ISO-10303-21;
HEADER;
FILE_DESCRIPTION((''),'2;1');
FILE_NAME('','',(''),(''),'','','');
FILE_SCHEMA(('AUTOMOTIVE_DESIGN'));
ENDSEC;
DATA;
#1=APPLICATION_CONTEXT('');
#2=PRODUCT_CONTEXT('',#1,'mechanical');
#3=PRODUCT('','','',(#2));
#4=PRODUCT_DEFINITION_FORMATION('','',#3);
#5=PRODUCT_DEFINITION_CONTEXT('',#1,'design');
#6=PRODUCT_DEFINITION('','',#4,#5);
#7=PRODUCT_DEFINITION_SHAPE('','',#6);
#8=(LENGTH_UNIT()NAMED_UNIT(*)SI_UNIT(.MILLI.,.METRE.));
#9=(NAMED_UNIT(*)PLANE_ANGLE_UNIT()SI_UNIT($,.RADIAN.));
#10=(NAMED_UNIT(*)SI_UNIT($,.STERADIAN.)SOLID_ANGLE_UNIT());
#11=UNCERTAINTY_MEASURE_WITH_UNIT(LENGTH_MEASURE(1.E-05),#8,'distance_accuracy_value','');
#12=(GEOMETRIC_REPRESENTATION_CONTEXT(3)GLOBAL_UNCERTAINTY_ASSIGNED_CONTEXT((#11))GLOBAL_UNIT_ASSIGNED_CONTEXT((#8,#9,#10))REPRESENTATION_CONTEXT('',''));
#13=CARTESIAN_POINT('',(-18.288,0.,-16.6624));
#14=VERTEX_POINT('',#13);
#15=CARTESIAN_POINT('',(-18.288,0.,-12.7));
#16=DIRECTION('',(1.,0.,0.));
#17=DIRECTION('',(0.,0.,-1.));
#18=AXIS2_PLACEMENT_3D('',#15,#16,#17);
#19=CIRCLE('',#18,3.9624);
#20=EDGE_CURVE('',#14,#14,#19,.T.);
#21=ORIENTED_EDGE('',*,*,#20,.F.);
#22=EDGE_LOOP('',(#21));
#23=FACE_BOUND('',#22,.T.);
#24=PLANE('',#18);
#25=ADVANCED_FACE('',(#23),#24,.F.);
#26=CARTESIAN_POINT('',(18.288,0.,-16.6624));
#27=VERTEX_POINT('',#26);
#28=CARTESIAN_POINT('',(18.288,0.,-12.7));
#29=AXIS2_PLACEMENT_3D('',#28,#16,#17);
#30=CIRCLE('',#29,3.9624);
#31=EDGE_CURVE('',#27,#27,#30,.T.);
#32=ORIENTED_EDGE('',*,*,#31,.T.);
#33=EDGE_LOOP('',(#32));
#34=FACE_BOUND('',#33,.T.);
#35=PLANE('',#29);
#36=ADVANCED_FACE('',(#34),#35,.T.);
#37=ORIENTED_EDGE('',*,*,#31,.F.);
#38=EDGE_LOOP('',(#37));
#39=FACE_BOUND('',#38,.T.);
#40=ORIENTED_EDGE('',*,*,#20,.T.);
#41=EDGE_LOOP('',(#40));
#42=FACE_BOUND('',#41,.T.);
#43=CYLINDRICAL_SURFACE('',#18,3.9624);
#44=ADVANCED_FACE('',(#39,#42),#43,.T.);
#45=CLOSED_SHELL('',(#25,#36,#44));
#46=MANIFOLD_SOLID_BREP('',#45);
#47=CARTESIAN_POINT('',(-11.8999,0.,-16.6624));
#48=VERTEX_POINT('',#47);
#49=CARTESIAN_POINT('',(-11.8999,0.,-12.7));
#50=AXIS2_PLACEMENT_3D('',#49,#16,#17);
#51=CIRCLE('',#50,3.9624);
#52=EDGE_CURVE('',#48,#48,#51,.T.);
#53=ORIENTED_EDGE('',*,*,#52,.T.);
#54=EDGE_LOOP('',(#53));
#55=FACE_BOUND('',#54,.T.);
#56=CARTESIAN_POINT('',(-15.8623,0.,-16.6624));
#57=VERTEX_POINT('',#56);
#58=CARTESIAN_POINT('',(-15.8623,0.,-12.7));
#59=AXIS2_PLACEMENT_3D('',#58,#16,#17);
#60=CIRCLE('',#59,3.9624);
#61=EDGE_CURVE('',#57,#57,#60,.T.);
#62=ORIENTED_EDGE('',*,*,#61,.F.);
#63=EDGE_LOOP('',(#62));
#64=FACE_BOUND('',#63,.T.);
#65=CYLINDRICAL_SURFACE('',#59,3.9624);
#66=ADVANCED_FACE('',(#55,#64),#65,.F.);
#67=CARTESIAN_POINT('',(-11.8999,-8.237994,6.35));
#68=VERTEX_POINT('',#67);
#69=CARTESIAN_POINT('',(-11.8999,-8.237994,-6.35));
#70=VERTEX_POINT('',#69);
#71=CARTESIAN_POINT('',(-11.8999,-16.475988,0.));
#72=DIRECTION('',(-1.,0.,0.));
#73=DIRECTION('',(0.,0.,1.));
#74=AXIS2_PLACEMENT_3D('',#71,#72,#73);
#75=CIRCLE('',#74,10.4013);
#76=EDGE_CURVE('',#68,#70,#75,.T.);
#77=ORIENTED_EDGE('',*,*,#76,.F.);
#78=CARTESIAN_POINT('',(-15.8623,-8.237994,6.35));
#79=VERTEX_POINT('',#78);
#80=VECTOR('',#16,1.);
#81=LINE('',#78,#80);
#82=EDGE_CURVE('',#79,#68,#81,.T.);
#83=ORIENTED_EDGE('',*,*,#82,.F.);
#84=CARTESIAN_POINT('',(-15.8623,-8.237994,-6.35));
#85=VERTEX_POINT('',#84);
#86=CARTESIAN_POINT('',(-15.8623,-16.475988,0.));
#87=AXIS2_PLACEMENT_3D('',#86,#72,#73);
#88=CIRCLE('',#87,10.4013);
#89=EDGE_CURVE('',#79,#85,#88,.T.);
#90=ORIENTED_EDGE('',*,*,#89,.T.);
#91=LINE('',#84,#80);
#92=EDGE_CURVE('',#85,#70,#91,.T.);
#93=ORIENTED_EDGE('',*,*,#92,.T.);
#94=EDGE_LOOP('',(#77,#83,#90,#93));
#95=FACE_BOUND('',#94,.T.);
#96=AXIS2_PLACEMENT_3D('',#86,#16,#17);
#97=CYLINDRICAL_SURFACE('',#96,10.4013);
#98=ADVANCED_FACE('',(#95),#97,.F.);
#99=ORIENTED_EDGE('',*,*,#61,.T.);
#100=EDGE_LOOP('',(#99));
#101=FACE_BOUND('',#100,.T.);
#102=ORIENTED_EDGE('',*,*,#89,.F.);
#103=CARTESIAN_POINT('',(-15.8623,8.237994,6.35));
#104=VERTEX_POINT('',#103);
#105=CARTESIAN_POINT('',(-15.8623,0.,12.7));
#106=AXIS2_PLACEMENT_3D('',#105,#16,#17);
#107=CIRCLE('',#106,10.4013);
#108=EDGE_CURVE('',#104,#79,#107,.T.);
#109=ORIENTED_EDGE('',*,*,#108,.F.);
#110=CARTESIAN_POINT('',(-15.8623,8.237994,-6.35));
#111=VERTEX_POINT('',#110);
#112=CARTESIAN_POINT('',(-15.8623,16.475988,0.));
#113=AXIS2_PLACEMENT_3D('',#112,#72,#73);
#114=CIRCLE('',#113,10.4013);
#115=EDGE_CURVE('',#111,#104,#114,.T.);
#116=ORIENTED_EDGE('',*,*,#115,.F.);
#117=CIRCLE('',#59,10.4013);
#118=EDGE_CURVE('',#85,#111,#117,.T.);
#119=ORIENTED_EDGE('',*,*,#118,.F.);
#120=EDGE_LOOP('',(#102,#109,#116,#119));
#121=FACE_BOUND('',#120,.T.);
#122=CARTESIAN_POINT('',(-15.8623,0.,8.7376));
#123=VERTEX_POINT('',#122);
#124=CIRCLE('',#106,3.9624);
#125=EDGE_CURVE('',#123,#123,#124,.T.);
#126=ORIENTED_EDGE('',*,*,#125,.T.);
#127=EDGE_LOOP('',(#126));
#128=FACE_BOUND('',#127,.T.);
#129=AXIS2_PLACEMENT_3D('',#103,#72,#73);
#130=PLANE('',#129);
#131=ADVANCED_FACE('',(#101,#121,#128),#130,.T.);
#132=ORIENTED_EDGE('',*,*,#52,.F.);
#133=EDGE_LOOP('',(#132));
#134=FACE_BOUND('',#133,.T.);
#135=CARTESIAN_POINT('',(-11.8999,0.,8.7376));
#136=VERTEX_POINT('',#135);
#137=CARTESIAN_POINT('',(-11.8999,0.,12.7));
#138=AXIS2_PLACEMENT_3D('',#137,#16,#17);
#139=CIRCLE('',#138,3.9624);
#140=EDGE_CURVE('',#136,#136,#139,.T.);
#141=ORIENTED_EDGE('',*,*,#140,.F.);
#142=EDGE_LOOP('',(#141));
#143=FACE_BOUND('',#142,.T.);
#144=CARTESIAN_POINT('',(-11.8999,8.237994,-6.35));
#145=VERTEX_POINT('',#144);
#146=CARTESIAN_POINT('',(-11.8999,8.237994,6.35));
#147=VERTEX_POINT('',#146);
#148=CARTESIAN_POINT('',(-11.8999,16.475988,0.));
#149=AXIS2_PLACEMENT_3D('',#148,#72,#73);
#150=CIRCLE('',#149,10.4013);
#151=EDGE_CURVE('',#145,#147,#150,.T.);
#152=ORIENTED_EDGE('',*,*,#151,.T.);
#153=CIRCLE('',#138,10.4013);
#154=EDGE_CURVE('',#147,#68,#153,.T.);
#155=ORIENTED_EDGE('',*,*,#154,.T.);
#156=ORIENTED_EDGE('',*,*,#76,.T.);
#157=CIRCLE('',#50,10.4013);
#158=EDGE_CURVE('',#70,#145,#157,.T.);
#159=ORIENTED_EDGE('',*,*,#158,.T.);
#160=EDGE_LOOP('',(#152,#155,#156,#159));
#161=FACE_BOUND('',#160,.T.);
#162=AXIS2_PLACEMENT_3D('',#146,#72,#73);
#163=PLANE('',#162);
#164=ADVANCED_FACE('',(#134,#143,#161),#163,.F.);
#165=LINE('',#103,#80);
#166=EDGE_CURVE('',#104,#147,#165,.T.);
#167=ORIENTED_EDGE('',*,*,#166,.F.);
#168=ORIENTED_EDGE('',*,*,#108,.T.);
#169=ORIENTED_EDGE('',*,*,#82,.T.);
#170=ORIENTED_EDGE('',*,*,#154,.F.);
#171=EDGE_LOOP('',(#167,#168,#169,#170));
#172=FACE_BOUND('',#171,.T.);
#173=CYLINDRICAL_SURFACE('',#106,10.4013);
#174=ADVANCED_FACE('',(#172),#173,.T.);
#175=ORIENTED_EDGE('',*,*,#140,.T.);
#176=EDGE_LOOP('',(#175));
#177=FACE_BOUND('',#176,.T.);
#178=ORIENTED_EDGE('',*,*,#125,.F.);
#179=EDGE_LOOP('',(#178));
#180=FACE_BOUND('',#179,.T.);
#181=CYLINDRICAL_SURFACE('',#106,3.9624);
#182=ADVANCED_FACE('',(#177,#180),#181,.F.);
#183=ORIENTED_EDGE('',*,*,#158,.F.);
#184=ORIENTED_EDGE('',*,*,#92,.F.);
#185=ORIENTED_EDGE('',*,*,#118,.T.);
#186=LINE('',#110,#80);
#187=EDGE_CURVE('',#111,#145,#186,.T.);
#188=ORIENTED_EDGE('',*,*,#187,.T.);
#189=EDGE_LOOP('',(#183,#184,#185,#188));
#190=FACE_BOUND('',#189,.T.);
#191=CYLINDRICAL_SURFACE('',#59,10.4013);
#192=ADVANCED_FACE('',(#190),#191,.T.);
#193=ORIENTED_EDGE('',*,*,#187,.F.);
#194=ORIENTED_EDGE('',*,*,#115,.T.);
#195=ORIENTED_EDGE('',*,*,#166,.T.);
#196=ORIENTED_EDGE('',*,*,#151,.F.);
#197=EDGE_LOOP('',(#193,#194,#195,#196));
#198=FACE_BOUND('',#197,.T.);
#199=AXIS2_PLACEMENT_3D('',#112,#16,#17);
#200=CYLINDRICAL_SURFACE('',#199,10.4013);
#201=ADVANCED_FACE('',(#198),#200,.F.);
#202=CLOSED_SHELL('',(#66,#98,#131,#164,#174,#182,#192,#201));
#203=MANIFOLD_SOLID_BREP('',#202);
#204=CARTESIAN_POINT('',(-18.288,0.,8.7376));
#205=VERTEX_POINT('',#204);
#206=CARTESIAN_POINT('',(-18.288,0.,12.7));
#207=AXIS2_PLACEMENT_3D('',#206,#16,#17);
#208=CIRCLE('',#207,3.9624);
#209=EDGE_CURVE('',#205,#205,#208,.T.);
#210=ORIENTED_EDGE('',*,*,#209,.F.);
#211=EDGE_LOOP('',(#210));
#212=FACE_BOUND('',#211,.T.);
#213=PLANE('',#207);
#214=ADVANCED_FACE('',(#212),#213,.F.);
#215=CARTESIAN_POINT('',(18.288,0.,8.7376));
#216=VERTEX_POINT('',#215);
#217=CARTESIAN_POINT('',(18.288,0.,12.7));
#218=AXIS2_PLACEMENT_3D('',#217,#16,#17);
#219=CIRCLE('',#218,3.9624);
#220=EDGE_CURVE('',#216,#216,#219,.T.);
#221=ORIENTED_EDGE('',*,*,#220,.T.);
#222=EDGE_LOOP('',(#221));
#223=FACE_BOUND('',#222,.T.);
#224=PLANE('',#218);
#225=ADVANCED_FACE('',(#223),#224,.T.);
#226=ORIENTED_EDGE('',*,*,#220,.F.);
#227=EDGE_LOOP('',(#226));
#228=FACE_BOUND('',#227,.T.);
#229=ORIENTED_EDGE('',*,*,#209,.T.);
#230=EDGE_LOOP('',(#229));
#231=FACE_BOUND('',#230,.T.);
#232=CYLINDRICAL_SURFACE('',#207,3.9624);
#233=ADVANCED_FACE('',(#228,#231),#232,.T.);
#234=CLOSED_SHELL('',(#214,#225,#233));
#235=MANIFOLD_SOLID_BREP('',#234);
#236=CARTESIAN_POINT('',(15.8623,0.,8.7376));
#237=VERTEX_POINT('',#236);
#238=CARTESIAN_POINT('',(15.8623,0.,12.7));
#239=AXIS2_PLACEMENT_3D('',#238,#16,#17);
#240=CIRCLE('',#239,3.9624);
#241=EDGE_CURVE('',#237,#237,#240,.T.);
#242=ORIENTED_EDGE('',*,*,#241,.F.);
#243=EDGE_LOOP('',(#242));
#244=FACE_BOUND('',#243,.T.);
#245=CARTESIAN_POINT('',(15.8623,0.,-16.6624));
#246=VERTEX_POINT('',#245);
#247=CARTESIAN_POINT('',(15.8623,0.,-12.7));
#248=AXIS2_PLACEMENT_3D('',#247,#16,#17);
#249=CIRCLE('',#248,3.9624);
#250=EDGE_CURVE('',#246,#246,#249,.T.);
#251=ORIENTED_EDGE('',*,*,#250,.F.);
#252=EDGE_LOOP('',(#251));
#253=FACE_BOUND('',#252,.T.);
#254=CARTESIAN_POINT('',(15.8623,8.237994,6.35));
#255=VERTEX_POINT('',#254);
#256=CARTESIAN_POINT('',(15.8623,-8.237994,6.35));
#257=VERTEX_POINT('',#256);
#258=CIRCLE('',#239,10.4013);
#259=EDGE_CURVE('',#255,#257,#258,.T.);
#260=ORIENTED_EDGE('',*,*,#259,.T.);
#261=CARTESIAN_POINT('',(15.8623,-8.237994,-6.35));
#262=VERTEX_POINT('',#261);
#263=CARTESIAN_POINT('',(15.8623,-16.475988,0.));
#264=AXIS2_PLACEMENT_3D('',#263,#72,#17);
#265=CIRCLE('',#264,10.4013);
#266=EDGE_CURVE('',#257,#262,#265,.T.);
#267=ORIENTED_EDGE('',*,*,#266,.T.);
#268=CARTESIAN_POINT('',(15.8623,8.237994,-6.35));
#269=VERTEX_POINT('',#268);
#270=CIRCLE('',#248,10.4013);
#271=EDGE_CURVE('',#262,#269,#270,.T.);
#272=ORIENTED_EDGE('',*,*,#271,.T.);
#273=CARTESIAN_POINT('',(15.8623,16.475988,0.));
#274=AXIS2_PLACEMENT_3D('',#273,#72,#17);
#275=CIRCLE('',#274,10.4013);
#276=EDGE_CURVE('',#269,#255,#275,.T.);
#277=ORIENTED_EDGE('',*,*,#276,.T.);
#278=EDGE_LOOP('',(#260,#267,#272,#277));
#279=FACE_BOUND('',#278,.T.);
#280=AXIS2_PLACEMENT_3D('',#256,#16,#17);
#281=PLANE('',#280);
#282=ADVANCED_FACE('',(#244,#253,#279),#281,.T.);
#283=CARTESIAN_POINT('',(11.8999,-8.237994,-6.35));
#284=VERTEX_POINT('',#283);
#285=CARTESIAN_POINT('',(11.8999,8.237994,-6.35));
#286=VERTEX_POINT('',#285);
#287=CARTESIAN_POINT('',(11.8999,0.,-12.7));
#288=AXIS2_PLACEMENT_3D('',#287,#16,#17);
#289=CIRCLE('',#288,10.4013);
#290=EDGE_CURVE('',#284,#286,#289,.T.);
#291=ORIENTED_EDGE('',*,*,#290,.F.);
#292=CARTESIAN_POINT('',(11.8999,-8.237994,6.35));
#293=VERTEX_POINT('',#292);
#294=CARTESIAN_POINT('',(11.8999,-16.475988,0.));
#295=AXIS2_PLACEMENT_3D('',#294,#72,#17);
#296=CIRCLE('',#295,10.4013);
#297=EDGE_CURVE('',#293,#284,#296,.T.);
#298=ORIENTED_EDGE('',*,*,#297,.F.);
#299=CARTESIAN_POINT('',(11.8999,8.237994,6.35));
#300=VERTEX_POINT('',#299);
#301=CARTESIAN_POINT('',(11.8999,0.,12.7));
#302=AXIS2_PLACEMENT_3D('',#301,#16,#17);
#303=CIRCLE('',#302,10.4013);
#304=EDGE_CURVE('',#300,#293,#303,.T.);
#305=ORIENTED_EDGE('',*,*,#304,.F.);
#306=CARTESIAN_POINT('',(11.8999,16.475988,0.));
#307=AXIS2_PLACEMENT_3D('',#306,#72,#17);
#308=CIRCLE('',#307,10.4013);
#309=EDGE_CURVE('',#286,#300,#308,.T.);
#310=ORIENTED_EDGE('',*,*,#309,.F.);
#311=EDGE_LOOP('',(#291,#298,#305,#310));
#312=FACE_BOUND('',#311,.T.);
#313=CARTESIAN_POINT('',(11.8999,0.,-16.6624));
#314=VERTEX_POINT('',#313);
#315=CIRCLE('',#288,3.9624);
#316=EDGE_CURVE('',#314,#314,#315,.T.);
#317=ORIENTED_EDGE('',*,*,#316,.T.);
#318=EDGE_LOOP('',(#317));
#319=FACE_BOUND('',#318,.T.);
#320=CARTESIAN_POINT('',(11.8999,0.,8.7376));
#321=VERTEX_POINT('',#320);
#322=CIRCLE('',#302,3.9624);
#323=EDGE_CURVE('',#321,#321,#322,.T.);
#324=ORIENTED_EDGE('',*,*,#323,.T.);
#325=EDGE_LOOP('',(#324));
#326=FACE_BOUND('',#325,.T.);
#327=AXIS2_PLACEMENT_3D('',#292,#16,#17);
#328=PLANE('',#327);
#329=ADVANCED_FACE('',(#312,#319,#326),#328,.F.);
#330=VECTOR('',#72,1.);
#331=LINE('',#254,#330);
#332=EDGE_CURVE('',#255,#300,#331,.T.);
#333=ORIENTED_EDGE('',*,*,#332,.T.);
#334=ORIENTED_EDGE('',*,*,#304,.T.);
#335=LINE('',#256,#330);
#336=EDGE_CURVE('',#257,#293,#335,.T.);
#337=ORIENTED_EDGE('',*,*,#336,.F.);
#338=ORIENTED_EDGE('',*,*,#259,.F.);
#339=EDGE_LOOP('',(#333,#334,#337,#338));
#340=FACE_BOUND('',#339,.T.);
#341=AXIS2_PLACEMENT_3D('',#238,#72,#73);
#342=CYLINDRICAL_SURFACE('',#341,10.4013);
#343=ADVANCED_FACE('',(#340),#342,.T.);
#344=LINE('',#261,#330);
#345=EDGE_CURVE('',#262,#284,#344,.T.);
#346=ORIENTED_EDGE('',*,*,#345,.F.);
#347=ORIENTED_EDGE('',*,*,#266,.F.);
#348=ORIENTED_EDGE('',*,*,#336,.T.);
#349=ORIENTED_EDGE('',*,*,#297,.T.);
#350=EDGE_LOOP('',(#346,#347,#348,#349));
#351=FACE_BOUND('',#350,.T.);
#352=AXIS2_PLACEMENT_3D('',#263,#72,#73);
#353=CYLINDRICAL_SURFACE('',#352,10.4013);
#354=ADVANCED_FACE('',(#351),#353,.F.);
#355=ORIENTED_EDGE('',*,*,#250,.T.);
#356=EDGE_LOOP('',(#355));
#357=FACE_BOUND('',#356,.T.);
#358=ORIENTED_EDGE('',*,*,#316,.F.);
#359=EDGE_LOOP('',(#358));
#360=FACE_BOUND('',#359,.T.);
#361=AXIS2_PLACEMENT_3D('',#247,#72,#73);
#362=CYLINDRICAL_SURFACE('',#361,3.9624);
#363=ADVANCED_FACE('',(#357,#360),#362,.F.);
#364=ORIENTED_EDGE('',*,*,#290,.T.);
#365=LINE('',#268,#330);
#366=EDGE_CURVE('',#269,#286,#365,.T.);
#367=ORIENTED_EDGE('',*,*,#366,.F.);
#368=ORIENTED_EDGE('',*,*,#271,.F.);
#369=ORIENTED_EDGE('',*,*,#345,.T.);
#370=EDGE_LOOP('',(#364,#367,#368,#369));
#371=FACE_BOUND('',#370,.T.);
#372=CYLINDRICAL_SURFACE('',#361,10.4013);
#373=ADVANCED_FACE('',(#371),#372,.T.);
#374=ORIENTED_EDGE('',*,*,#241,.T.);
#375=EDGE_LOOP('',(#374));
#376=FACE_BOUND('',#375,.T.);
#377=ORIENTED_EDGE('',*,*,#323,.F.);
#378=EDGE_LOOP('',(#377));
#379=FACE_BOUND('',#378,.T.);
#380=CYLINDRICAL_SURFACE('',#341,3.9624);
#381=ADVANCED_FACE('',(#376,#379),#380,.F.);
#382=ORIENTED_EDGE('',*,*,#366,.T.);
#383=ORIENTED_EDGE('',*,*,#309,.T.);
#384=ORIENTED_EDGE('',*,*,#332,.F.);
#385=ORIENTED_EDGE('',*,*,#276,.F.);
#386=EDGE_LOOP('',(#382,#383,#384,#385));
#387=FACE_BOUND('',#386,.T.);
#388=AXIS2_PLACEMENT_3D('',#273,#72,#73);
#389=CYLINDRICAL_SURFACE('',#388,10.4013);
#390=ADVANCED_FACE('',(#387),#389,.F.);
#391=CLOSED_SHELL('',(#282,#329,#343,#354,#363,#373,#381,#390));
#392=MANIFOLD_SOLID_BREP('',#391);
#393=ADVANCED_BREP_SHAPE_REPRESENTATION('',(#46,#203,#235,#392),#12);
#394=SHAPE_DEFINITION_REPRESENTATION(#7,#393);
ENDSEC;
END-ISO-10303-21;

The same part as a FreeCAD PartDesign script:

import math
import FreeCAD as App
import Part
import Sketcher
from FreeCAD import Vector
Q = App.Units.Quantity

doc = App.newDocument("Part")
body = doc.addObject("PartDesign::Body", "Body")

# Sketch on YZ plane
sketch1 = doc.addObject("Sketcher::SketchObject", "Sketch")
body.addObject(sketch1)
sketch1.AttachmentSupport = (doc.YZ_Plane, [""])
sketch1.MapMode = "FlatFace"
sketch1.AttachmentOffset = App.Placement(Vector(0, 0, -0.4685 * 25.4), App.Rotation())
sketch1.addGeometry(Part.ArcOfCircle(Part.Circle(Vector(0, 12.7, 0), Vector(0, 0, 1), 10.4), math.radians(-38), math.radians(218)), False)
sketch1.addGeometry(Part.ArcOfCircle(Part.Circle(Vector(-16.5, 0, 0), Vector(0, 0, 1), 10.4), math.radians(-38), math.radians(38)), False)
sketch1.addGeometry(Part.ArcOfCircle(Part.Circle(Vector(0, -12.7, 0), Vector(0, 0, 1), 10.4), math.radians(142), math.radians(398)), False)
sketch1.addGeometry(Part.ArcOfCircle(Part.Circle(Vector(16.5, 0, 0), Vector(0, 0, 1), 10.4), math.radians(142), math.radians(218)), False)
sketch1.addGeometry(Part.Circle(Vector(0, 12.7, 0), Vector(0, 0, 1), 4), False)
sketch1.addGeometry(Part.Circle(Vector(0, -12.7, 0), Vector(0, 0, 1), 4), False)
sketch1.addConstraint(Sketcher.Constraint("Tangent", 0, 2, 1, 2))
sketch1.addConstraint(Sketcher.Constraint("Tangent", 1, 1, 2, 1))
sketch1.addConstraint(Sketcher.Constraint("Tangent", 2, 2, 3, 2))
sketch1.addConstraint(Sketcher.Constraint("Tangent", 3, 1, 0, 1))
sketch1.addConstraint(Sketcher.Constraint("Coincident", 4, 3, 0, 3))
sketch1.addConstraint(Sketcher.Constraint("Coincident", 5, 3, 2, 3))
sketch1.addConstraint(Sketcher.Constraint("Equal", 0, 1))
sketch1.addConstraint(Sketcher.Constraint("Equal", 1, 2))
sketch1.addConstraint(Sketcher.Constraint("Equal", 2, 3))
sketch1.addConstraint(Sketcher.Constraint("Equal", 4, 5))
sketch1.addConstraint(Sketcher.Constraint("Symmetric", 0, 3, 2, 3, -1, 1))
sketch1.addConstraint(Sketcher.Constraint("PointOnObject", 0, 3, -2))
sketch1.addConstraint(Sketcher.Constraint("Diameter", 4, Q("0.312 in")))
sketch1.addConstraint(Sketcher.Constraint("DistanceY", 2, 3, 0, 3, Q("1 in")))
sketch1.addConstraint(Sketcher.Constraint("Radius", 0, Q("0.4095 in")))
pad1 = doc.addObject("PartDesign::Pad", "Pad")
body.addObject(pad1)
pad1.Profile = sketch1
pad1.Length = Q("0.156 in")
pad1.Reversed = True
body2 = doc.addObject("PartDesign::Body", "Body001")

# Sketch on YZ plane
sketch2 = doc.addObject("Sketcher::SketchObject", "Sketch001")
body2.addObject(sketch2)
sketch2.AttachmentSupport = (doc.getObject("YZ_Plane001"), [""])
sketch2.MapMode = "FlatFace"
sketch2.AttachmentOffset = App.Placement(Vector(0, 0, 0.4685 * 25.4), App.Rotation())
sketch2.addGeometry(Part.ArcOfCircle(Part.Circle(Vector(16.5, 0, 0), Vector(0, 0, 1), 10.4), math.radians(142), math.radians(218)), False)
sketch2.addGeometry(Part.ArcOfCircle(Part.Circle(Vector(0, 12.7, 0), Vector(0, 0, 1), 10.4), math.radians(-38), math.radians(218)), False)
sketch2.addGeometry(Part.ArcOfCircle(Part.Circle(Vector(-16.5, 0, 0), Vector(0, 0, 1), 10.4), math.radians(-38), math.radians(38)), False)
sketch2.addGeometry(Part.ArcOfCircle(Part.Circle(Vector(0, -12.7, 0), Vector(0, 0, 1), 10.4), math.radians(142), math.radians(398)), False)
sketch2.addGeometry(Part.Circle(Vector(0, -12.7, 0), Vector(0, 0, 1), 4), False)
sketch2.addGeometry(Part.Circle(Vector(0, 12.7, 0), Vector(0, 0, 1), 4), False)
sketch2.addConstraint(Sketcher.Constraint("Tangent", 0, 1, 1, 1))
sketch2.addConstraint(Sketcher.Constraint("Tangent", 1, 2, 2, 2))
sketch2.addConstraint(Sketcher.Constraint("Tangent", 2, 1, 3, 1))
sketch2.addConstraint(Sketcher.Constraint("Tangent", 3, 2, 0, 2))
sketch2.addConstraint(Sketcher.Constraint("Coincident", 4, 3, 3, 3))
sketch2.addConstraint(Sketcher.Constraint("Coincident", 5, 3, 1, 3))
sketch2.addConstraint(Sketcher.Constraint("Equal", 0, 1))
sketch2.addConstraint(Sketcher.Constraint("Equal", 1, 2))
sketch2.addConstraint(Sketcher.Constraint("Equal", 2, 3))
sketch2.addConstraint(Sketcher.Constraint("Equal", 4, 5))
sketch2.addConstraint(Sketcher.Constraint("Symmetric", 0, 3, 2, 3, -1, 1))
sketch2.addConstraint(Sketcher.Constraint("PointOnObject", 0, 3, -1))
sketch2.addConstraint(Sketcher.Constraint("Diameter", 4, Q("0.312 in")))
sketch2.addConstraint(Sketcher.Constraint("DistanceY", 3, 3, 1, 3, Q("1 in")))
sketch2.addConstraint(Sketcher.Constraint("Radius", 0, Q("0.4095 in")))
pad2 = doc.addObject("PartDesign::Pad", "Pad001")
body2.addObject(pad2)
pad2.Profile = sketch2
pad2.Length = Q("0.156 in")
body3 = doc.addObject("PartDesign::Body", "Body002")

# Sketch on YZ plane
sketch3 = doc.addObject("Sketcher::SketchObject", "Sketch002")
body3.addObject(sketch3)
sketch3.AttachmentSupport = (doc.getObject("YZ_Plane002"), [""])
sketch3.MapMode = "FlatFace"
sketch3.addGeometry(Part.Circle(Vector(0, -12.7, 0), Vector(0, 0, 1), 4), False)
sketch3.addConstraint(Sketcher.Constraint("PointOnObject", 0, 3, -2))
sketch3.addConstraint(Sketcher.Constraint("Diameter", 0, Q("0.312 in")))
sketch3.addConstraint(Sketcher.Constraint("DistanceY", 0, 3, -1, 1, Q("0.5 in")))
pad3 = doc.addObject("PartDesign::Pad", "Pad002")
body3.addObject(pad3)
pad3.Profile = sketch3
pad3.Type = "TwoLengths"
pad3.Length = Q("0.72 in")
pad3.Length2 = Q("0.72 in")
body4 = doc.addObject("PartDesign::Body", "Body003")

# Sketch on YZ plane
sketch4 = doc.addObject("Sketcher::SketchObject", "Sketch003")
body4.addObject(sketch4)
sketch4.AttachmentSupport = (doc.getObject("YZ_Plane003"), [""])
sketch4.MapMode = "FlatFace"
sketch4.addGeometry(Part.Circle(Vector(0, 12.7, 0), Vector(0, 0, 1), 4), False)
sketch4.addConstraint(Sketcher.Constraint("PointOnObject", 0, 3, -2))
sketch4.addConstraint(Sketcher.Constraint("Diameter", 0, Q("0.312 in")))
sketch4.addConstraint(Sketcher.Constraint("DistanceY", -1, 1, 0, 3, Q("0.5 in")))
pad4 = doc.addObject("PartDesign::Pad", "Pad003")
body4.addObject(pad4)
pad4.Profile = sketch4
pad4.Type = "TwoLengths"
pad4.Length = Q("0.72 in")
pad4.Length2 = Q("0.72 in")

doc.recompute()
